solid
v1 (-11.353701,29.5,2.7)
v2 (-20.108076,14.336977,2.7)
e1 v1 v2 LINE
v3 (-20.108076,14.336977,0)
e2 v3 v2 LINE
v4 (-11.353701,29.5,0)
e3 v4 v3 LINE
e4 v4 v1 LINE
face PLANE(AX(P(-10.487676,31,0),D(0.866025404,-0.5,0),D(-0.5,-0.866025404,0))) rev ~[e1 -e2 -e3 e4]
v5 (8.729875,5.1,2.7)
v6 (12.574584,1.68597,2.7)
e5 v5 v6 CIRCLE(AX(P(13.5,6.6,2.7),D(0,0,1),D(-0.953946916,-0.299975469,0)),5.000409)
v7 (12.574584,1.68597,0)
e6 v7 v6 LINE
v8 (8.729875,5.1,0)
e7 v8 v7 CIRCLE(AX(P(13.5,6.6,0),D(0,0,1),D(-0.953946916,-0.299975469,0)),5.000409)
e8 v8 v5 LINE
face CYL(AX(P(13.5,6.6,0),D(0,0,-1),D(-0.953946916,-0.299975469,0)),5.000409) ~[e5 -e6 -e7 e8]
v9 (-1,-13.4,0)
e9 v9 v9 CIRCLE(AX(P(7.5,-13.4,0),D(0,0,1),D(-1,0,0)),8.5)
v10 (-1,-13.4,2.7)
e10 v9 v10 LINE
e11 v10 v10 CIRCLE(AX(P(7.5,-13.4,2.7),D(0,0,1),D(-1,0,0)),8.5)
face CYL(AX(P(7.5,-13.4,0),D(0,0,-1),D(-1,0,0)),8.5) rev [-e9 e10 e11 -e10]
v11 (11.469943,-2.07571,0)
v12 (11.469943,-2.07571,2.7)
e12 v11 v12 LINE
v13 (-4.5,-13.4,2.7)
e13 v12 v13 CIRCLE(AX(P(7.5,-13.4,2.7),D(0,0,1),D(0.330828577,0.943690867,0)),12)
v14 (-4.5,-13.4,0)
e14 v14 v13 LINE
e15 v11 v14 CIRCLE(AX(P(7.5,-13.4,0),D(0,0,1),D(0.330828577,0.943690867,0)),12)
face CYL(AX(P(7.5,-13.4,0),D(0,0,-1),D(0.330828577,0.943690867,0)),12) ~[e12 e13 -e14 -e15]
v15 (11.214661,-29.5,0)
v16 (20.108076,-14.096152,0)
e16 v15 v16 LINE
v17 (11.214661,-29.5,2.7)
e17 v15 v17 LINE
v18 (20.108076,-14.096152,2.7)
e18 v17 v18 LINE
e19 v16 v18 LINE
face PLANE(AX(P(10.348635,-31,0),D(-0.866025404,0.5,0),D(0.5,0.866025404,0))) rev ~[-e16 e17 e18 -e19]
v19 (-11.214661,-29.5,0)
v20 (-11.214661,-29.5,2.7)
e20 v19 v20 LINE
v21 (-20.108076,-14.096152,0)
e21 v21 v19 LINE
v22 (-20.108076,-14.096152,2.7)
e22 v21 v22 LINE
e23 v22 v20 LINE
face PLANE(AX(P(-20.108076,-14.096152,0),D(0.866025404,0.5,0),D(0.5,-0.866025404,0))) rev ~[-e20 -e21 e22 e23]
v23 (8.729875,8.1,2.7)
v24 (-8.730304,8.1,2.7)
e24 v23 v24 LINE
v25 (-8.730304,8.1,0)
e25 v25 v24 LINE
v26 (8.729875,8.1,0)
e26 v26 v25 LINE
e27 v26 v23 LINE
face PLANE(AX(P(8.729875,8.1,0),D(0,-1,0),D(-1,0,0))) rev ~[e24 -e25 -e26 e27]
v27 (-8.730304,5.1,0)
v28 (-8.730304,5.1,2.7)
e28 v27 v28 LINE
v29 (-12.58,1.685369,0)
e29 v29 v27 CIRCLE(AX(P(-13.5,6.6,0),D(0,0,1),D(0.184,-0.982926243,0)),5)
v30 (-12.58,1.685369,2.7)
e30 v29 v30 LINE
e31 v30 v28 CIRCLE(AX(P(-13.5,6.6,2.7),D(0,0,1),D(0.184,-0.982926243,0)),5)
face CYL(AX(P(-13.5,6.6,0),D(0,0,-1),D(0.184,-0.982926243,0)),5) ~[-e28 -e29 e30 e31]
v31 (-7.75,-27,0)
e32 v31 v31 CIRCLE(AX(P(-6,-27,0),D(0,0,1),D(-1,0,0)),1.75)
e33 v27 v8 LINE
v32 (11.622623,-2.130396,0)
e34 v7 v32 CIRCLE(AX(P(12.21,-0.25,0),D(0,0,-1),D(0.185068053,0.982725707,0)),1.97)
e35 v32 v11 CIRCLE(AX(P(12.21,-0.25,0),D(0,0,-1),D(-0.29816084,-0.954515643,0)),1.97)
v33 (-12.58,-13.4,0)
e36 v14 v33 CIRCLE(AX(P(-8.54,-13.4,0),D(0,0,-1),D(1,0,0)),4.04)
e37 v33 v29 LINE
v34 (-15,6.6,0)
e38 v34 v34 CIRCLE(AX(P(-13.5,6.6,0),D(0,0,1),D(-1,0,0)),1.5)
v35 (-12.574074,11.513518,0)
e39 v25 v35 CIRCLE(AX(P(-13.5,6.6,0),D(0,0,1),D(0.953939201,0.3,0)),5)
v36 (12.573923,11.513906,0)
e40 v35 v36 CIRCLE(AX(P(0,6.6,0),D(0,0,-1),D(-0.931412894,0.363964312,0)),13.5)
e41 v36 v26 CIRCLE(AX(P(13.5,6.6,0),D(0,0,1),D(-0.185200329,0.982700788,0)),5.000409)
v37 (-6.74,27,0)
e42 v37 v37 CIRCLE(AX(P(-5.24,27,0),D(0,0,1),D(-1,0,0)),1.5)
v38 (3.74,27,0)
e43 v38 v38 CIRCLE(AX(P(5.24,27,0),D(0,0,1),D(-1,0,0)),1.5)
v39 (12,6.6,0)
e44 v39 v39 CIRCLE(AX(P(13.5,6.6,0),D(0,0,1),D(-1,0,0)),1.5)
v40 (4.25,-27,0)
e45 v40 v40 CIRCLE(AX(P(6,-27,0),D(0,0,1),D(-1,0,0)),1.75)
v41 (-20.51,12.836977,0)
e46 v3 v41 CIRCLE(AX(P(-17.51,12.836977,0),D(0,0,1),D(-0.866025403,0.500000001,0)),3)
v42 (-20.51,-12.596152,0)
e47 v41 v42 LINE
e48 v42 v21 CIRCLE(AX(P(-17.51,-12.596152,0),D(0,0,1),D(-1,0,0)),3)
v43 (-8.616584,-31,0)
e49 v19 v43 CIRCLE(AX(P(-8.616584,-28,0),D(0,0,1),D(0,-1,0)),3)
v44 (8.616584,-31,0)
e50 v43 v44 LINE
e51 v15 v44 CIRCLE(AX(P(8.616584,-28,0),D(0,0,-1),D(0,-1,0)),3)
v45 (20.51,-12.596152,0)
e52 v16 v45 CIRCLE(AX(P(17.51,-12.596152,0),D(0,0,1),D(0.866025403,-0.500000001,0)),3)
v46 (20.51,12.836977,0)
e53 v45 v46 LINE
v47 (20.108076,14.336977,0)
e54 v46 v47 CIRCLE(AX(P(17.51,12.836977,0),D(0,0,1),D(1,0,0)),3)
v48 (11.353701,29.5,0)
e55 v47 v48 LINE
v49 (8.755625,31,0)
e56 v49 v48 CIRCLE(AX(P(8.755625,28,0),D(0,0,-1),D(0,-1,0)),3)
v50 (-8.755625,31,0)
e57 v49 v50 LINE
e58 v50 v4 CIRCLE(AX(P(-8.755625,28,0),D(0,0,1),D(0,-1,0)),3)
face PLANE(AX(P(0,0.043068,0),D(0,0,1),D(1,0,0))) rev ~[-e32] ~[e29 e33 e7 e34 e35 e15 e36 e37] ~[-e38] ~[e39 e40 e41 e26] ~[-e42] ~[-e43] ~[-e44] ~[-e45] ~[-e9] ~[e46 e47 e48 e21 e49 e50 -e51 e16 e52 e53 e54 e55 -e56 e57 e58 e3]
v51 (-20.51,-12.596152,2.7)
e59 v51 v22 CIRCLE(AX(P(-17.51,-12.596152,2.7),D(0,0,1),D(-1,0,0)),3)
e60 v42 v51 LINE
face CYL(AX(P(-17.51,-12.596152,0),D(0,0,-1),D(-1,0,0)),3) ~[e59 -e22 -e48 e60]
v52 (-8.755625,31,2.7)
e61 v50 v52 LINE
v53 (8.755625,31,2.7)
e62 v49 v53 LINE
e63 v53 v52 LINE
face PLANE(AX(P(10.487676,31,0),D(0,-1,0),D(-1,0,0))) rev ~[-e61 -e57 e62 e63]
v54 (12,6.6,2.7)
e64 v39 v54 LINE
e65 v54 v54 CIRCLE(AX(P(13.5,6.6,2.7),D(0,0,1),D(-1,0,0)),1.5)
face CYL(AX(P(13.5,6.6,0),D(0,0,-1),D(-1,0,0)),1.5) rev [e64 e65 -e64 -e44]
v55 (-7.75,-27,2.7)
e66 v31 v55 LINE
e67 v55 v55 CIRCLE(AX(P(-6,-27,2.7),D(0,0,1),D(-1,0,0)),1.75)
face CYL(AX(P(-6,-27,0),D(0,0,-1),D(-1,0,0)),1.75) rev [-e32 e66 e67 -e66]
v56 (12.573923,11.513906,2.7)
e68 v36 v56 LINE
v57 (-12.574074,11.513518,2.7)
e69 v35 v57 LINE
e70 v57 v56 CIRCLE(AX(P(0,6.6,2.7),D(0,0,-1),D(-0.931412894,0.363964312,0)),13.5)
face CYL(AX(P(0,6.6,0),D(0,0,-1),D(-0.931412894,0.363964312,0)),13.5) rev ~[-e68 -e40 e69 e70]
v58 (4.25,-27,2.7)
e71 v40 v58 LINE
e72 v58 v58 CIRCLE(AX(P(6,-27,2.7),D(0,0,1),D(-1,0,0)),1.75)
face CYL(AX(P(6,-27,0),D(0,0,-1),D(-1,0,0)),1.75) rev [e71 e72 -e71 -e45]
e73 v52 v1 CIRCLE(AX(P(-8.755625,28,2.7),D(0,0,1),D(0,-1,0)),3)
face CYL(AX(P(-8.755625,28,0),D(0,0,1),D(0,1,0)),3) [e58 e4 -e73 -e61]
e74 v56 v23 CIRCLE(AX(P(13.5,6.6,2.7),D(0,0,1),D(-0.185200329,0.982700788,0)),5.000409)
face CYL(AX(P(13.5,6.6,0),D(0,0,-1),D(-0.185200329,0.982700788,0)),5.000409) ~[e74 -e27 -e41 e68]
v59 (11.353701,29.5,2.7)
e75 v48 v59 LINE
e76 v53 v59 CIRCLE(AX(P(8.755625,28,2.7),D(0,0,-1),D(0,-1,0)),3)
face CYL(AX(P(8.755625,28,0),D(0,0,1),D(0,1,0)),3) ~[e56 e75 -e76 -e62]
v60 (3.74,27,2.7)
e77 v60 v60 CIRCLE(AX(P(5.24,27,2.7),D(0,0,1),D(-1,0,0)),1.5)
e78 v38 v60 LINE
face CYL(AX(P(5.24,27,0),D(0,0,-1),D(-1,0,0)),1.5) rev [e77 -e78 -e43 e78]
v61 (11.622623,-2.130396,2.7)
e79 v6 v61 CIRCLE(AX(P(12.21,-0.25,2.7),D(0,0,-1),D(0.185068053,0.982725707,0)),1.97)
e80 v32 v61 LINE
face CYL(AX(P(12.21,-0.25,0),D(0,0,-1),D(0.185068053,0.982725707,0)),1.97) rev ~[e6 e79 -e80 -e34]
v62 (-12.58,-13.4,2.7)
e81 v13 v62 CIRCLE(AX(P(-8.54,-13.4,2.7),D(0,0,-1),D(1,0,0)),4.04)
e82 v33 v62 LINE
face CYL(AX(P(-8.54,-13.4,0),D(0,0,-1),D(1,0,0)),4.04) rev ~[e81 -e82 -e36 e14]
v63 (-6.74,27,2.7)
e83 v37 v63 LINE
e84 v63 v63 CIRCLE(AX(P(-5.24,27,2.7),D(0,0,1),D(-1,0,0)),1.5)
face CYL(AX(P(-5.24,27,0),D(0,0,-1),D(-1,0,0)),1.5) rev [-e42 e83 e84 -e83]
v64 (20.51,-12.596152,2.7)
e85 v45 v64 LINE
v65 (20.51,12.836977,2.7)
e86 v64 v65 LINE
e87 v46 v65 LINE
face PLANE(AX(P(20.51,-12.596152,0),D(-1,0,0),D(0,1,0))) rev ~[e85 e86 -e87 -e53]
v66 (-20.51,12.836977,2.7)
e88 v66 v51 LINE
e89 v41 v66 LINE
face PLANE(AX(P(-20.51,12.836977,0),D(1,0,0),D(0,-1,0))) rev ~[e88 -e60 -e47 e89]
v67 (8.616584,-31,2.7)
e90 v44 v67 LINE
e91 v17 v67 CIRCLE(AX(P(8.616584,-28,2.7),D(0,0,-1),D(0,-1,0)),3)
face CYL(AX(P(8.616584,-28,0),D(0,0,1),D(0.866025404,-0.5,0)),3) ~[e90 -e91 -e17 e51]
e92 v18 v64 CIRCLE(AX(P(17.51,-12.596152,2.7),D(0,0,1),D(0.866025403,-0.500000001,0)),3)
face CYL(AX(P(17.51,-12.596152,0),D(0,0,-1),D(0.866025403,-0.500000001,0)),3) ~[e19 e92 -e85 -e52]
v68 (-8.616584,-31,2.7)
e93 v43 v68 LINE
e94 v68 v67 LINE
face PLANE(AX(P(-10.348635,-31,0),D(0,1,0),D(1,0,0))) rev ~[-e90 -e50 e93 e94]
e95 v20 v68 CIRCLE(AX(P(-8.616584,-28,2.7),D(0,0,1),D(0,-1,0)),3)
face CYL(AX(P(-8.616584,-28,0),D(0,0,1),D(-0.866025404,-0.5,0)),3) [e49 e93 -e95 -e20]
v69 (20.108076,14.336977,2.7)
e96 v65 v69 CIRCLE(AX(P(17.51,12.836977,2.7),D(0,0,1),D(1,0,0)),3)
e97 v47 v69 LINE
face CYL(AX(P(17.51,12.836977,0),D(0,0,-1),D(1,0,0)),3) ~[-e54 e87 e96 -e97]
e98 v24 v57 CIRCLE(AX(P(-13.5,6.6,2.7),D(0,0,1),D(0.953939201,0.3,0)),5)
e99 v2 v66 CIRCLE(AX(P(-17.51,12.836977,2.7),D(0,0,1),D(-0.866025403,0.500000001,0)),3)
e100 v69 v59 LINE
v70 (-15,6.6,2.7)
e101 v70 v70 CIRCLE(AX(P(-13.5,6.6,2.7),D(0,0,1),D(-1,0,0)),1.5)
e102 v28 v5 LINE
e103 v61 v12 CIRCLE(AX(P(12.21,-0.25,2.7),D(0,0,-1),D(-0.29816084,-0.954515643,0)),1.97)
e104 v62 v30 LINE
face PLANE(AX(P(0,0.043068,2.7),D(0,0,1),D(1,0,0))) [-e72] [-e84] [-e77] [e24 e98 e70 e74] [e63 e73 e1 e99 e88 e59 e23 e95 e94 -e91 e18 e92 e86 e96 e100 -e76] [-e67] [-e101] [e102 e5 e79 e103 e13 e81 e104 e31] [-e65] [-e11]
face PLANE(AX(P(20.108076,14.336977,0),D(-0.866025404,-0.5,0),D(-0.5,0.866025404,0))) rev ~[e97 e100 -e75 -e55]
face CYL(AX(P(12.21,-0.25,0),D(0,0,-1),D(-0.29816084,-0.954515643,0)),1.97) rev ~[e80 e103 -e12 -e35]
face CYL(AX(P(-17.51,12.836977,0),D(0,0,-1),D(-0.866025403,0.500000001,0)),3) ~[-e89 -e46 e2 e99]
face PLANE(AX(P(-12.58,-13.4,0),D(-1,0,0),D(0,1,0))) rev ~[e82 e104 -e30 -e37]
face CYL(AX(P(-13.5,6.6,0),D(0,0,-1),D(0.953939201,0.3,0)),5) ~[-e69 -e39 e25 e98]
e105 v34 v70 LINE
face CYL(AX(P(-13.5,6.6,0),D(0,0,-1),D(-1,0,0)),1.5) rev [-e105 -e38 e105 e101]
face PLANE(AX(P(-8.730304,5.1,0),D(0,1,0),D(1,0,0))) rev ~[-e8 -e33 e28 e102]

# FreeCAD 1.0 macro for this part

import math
import FreeCAD as App
import Part
import Sketcher
Q = App.Units.Quantity


def edges_at(feature, points):
    """Names of the edges that pass closest to the given points."""
    edges = feature.Shape.Edges
    near = lambda p: min(range(len(edges)), key=lambda i: edges[i].distToShape(Part.Vertex(*p))[0])
    return sorted({f"Edge{near(p) + 1}" for p in points})

doc = App.newDocument("Part")
body = doc.addObject("PartDesign::Body", "Body")

# Sketch on XY plane
sketch1 = doc.addObject("Sketcher::SketchObject", "Sketch")
body.addObject(sketch1)
sketch1.AttachmentSupport = (doc.XY_Plane, [""])
sketch1.MapMode = "FlatFace"
sketch1.addGeometry(Part.LineSegment(App.Vector(10.49, 31, 0), App.Vector(-10.49, 31, 0)), False)
sketch1.addGeometry(Part.LineSegment(App.Vector(-10.49, 31, 0), App.Vector(-20.11, 14.34, 0)), False)
sketch1.addGeometry(Part.ArcOfCircle(Part.Circle(App.Vector(-17.51, 12.84, 0), App.Vector(0, 0, 1), 3), math.radians(150), math.radians(180)), False)
sketch1.addGeometry(Part.LineSegment(App.Vector(-20.51, 12.84, 0), App.Vector(-20.51, -12.6, 0)), False)
sketch1.addGeometry(Part.ArcOfCircle(Part.Circle(App.Vector(-17.51, -12.6, 0), App.Vector(0, 0, 1), 3), math.radians(180), math.radians(210)), False)
sketch1.addGeometry(Part.LineSegment(App.Vector(-20.11, -14.1, 0), App.Vector(-10.35, -31, 0)), False)
sketch1.addGeometry(Part.LineSegment(App.Vector(-10.35, -31, 0), App.Vector(10.35, -31, 0)), False)
sketch1.addGeometry(Part.LineSegment(App.Vector(10.35, -31, 0), App.Vector(20.11, -14.1, 0)), False)
sketch1.addGeometry(Part.ArcOfCircle(Part.Circle(App.Vector(17.51, -12.6, 0), App.Vector(0, 0, 1), 3), math.radians(-30), math.radians(0)), False)
sketch1.addGeometry(Part.LineSegment(App.Vector(20.51, -12.6, 0), App.Vector(20.51, 12.84, 0)), False)
sketch1.addGeometry(Part.ArcOfCircle(Part.Circle(App.Vector(17.51, 12.84, 0), App.Vector(0, 0, 1), 3), math.radians(0), math.radians(30)), False)
sketch1.addGeometry(Part.LineSegment(App.Vector(20.11, 14.34, 0), App.Vector(10.49, 31, 0)), False)
sketch1.addGeometry(Part.Circle(App.Vector(-6, -27, 0), App.Vector(0, 0, 1), 1.75), False)
sketch1.addGeometry(Part.Circle(App.Vector(6, -27, 0), App.Vector(0, 0, 1), 1.75), False)
sketch1.addGeometry(Part.Circle(App.Vector(7.5, -13.4, 0), App.Vector(0, 0, 1), 8.5), False)
sketch1.addGeometry(Part.ArcOfCircle(Part.Circle(App.Vector(7.5, -13.4, 0), App.Vector(0, 0, 1), 12), math.radians(71), math.radians(180)), False)
sketch1.addGeometry(Part.ArcOfCircle(Part.Circle(App.Vector(-8.54, -13.4, 0), App.Vector(0, 0, 1), 4.04), math.radians(180), math.radians(360)), False)
sketch1.addGeometry(Part.LineSegment(App.Vector(-12.58, -13.4, 0), App.Vector(-12.58, 1.69, 0)), False)
sketch1.addGeometry(Part.ArcOfCircle(Part.Circle(App.Vector(-13.5, 6.6, 0), App.Vector(0, 0, 1), 5), math.radians(-79), math.radians(-17)), False)
sketch1.addGeometry(Part.LineSegment(App.Vector(-8.73, 5.1, 0), App.Vector(8.73, 5.1, 0)), False)
sketch1.addGeometry(Part.ArcOfCircle(Part.Circle(App.Vector(13.5, 6.6, 0), App.Vector(0, 0, 1), 5), math.radians(-163), math.radians(-101)), False)
sketch1.addGeometry(Part.ArcOfCircle(Part.Circle(App.Vector(12.21, -0.25, 0), App.Vector(0, 0, 1), 1.97), math.radians(-107), math.radians(79)), False)
sketch1.addGeometry(Part.ArcOfCircle(Part.Circle(App.Vector(12.21, -0.25, 0), App.Vector(0, 0, 1), 1.97), math.radians(-112.07), math.radians(-107.35)), False)
sketch1.addGeometry(Part.Circle(App.Vector(-13.5, 6.6, 0), App.Vector(0, 0, 1), 1.5), False)
sketch1.addGeometry(Part.ArcOfCircle(Part.Circle(App.Vector(13.5, 6.6, 0), App.Vector(0, 0, 1), 5), math.radians(101), math.radians(163)), False)
sketch1.addGeometry(Part.LineSegment(App.Vector(8.73, 8.1, 0), App.Vector(-8.73, 8.1, 0)), False)
sketch1.addGeometry(Part.ArcOfCircle(Part.Circle(App.Vector(-13.5, 6.6, 0), App.Vector(0, 0, 1), 5), math.radians(17), math.radians(79)), False)
sketch1.addGeometry(Part.ArcOfCircle(Part.Circle(App.Vector(0, 6.6, 0), App.Vector(0, 0, 1), 13.5), math.radians(21), math.radians(159)), False)
sketch1.addGeometry(Part.Circle(App.Vector(-5.24, 27, 0), App.Vector(0, 0, 1), 1.5), False)
sketch1.addGeometry(Part.Circle(App.Vector(13.5, 6.6, 0), App.Vector(0, 0, 1), 1.5), False)
sketch1.addGeometry(Part.Circle(App.Vector(5.24, 27, 0), App.Vector(0, 0, 1), 1.5), False)
sketch1.addConstraint(Sketcher.Constraint("Coincident", 0, 2, 1, 1))
sketch1.addConstraint(Sketcher.Constraint("Tangent", 1, 2, 2, 1))
sketch1.addConstraint(Sketcher.Constraint("Tangent", 2, 2, 3, 1))
sketch1.addConstraint(Sketcher.Constraint("Tangent", 3, 2, 4, 1))
sketch1.addConstraint(Sketcher.Constraint("Tangent", 4, 2, 5, 1))
sketch1.addConstraint(Sketcher.Constraint("Coincident", 5, 2, 6, 1))
sketch1.addConstraint(Sketcher.Constraint("Coincident", 6, 2, 7, 1))
sketch1.addConstraint(Sketcher.Constraint("Tangent", 7, 2, 8, 1))
sketch1.addConstraint(Sketcher.Constraint("Tangent", 8, 2, 9, 1))
sketch1.addConstraint(Sketcher.Constraint("Tangent", 9, 2, 10, 1))
sketch1.addConstraint(Sketcher.Constraint("Tangent", 10, 2, 11, 1))
sketch1.addConstraint(Sketcher.Constraint("Coincident", 11, 2, 0, 1))
sketch1.addConstraint(Sketcher.Constraint("Tangent", 15, 2, 16, 2))
sketch1.addConstraint(Sketcher.Constraint("Tangent", 16, 1, 17, 1))
sketch1.addConstraint(Sketcher.Constraint("Coincident", 17, 2, 18, 1))
sketch1.addConstraint(Sketcher.Constraint("Coincident", 18, 2, 19, 1))
sketch1.addConstraint(Sketcher.Constraint("Coincident", 19, 2, 20, 1))
sketch1.addConstraint(Sketcher.Constraint("Tangent", 20, 2, 21, 2))
sketch1.addConstraint(Sketcher.Constraint("Tangent", 21, 1, 22, 2))
sketch1.addConstraint(Sketcher.Constraint("Coincident", 22, 1, 15, 1))
sketch1.addConstraint(Sketcher.Constraint("Coincident", 24, 2, 25, 1))
sketch1.addConstraint(Sketcher.Constraint("Coincident", 25, 2, 26, 1))
sketch1.addConstraint(Sketcher.Constraint("Coincident", 26, 2, 27, 2))
sketch1.addConstraint(Sketcher.Constraint("Coincident", 27, 1, 24, 1))
sketch1.addConstraint(Sketcher.Constraint("Horizontal", 0))
sketch1.addConstraint(Sketcher.Constraint("Vertical", 3))
sketch1.addConstraint(Sketcher.Constraint("Horizontal", 6))
sketch1.addConstraint(Sketcher.Constraint("Vertical", 9))
sketch1.addConstraint(Sketcher.Constraint("Vertical", 17))
sketch1.addConstraint(Sketcher.Constraint("Horizontal", 19))
sketch1.addConstraint(Sketcher.Constraint("Horizontal", 25))
sketch1.addConstraint(Sketcher.Constraint("Coincident", 15, 3, 14, 3))
sketch1.addConstraint(Sketcher.Constraint("Coincident", 23, 3, 18, 3))
sketch1.addConstraint(Sketcher.Constraint("Coincident", 24, 3, 20, 3))
sketch1.addConstraint(Sketcher.Constraint("Coincident", 26, 3, 18, 3))
sketch1.addConstraint(Sketcher.Constraint("Coincident", 29, 3, 20, 3))
sketch1.addConstraint(Sketcher.Constraint("Equal", 2, 4))
sketch1.addConstraint(Sketcher.Constraint("Equal", 4, 8))
sketch1.addConstraint(Sketcher.Constraint("Equal", 8, 10))
sketch1.addConstraint(Sketcher.Constraint("Equal", 12, 13))
sketch1.addConstraint(Sketcher.Constraint("Equal", 21, 22))
sketch1.addConstraint(Sketcher.Constraint("Equal", 20, 24))
sketch1.addConstraint(Sketcher.Constraint("Equal", 18, 26))
sketch1.addConstraint(Sketcher.Constraint("Equal", 23, 28))
sketch1.addConstraint(Sketcher.Constraint("Equal", 28, 29))
sketch1.addConstraint(Sketcher.Constraint("Equal", 29, 30))
sketch1.addConstraint(Sketcher.Constraint("Symmetric", 4, 3, 8, 3, -2))
sketch1.addConstraint(Sketcher.Constraint("Symmetric", 12, 3, 13, 3, -2))
sketch1.addConstraint(Sketcher.Constraint("Symmetric", 18, 3, 20, 3, -2))
sketch1.addConstraint(Sketcher.Constraint("Symmetric", 28, 3, 30, 3, -2))
sketch1.addConstraint(Sketcher.Constraint("Symmetric", 1, 2, 10, 2, -2))
sketch1.addConstraint(Sketcher.Constraint("PointOnObject", 27, 3, -2))
sketch1.addConstraint(Sketcher.Constraint("Parallel", 1, 7))
sketch1.addConstraint(Sketcher.Constraint("Parallel", 5, 11))
sketch1.addConstraint(Sketcher.Constraint("Horizontal", 15, 3, 16, 3))
sketch1.addConstraint(Sketcher.Constraint("Horizontal", 26, 3, 27, 3))
sketch1.addConstraint(Sketcher.Constraint("Vertical", 19, 2, 24, 2))
sketch1.addConstraint(Sketcher.Constraint("Diameter", 14, 17.0))
sketch1.addConstraint(Sketcher.Constraint("Diameter", 23, 3.0))
sketch1.addConstraint(Sketcher.Constraint("Radius", 2, 3.0))
sketch1.addConstraint(Sketcher.Constraint("Radius", 15, 12.0))
sketch1.addConstraint(Sketcher.Constraint("Radius", 18, 5.0))
sketch1.addConstraint(Sketcher.Constraint("Diameter", 12, 3.5))
sketch1.addConstraint(Sketcher.Constraint("Radius", 27, 13.5))
sketch1.addConstraint(Sketcher.Constraint("Angle", 1, Q("-120 deg")))
sketch1.addConstraint(Sketcher.Constraint("Radius", 16, 4.04))
sketch1.addConstraint(Sketcher.Constraint("Radius", 21, 1.97))
sketch1.addConstraint(Sketcher.Constraint("DistanceX", 12, 3, -1, 1, 6.0))
sketch1.addConstraint(Sketcher.Constraint("DistanceY", 12, 3, -1, 1, 27.0))
sketch1.addConstraint(Sketcher.Constraint("DistanceY", -1, 1, 28, 3, 27.0))
sketch1.addConstraint(Sketcher.Constraint("DistanceY", -1, 1, 0, 2, 31.0))
sketch1.addConstraint(Sketcher.Constraint("DistanceY", 5, 2, -1, 1, 31.0))
sketch1.addConstraint(Sketcher.Constraint("DistanceY", 16, 3, 18, 3, 20.0))
sketch1.addConstraint(Sketcher.Constraint("DistanceX", 18, 3, 14, 3, 21.0))
sketch1.addConstraint(Sketcher.Constraint("DistanceX", 14, 3, 20, 3, 6.0))
sketch1.addConstraint(Sketcher.Constraint("DistanceY", 19, 2, 24, 2, 3.0))
sketch1.addConstraint(Sketcher.Constraint("DistanceY", 14, 3, -1, 1, 13.4))
sketch1.addConstraint(Sketcher.Constraint("DistanceX", 21, 3, 8, 3, 5.3))
sketch1.addConstraint(Sketcher.Constraint("DistanceX", 2, 3, -1, 1, 17.51))
sketch1.addConstraint(Sketcher.Constraint("DistanceY", 21, 3, -1, 1, 0.25))
sketch1.addConstraint(Sketcher.Constraint("DistanceX", 28, 3, -1, 1, 5.24))
sketch1.addConstraint(Sketcher.Constraint("Distance", 1, 19.240801))
sketch1.addConstraint(Sketcher.Constraint("DistanceX", 6, 1, 6, 2, 20.697271))
sketch1.addConstraint(Sketcher.Constraint("DistanceX", 21, 1, 20, 2, 0.951961))
pad1 = doc.addObject("PartDesign::Pad", "Pad")
body.addObject(pad1)
pad1.Profile = sketch1
pad1.Length = 2.7
doc.recompute()

fillet = doc.addObject("PartDesign::Fillet", "Fillet")
body.addObject(fillet)
fillet.Base = (pad1, edges_at(pad1, [
    (-10.488, 31, 1.35),
    (10.488, 31, 1.35),
    (10.349, -31, 1.35),
    (-10.349, -31, 1.35),
]))
fillet.Radius = 3

doc.recompute()
